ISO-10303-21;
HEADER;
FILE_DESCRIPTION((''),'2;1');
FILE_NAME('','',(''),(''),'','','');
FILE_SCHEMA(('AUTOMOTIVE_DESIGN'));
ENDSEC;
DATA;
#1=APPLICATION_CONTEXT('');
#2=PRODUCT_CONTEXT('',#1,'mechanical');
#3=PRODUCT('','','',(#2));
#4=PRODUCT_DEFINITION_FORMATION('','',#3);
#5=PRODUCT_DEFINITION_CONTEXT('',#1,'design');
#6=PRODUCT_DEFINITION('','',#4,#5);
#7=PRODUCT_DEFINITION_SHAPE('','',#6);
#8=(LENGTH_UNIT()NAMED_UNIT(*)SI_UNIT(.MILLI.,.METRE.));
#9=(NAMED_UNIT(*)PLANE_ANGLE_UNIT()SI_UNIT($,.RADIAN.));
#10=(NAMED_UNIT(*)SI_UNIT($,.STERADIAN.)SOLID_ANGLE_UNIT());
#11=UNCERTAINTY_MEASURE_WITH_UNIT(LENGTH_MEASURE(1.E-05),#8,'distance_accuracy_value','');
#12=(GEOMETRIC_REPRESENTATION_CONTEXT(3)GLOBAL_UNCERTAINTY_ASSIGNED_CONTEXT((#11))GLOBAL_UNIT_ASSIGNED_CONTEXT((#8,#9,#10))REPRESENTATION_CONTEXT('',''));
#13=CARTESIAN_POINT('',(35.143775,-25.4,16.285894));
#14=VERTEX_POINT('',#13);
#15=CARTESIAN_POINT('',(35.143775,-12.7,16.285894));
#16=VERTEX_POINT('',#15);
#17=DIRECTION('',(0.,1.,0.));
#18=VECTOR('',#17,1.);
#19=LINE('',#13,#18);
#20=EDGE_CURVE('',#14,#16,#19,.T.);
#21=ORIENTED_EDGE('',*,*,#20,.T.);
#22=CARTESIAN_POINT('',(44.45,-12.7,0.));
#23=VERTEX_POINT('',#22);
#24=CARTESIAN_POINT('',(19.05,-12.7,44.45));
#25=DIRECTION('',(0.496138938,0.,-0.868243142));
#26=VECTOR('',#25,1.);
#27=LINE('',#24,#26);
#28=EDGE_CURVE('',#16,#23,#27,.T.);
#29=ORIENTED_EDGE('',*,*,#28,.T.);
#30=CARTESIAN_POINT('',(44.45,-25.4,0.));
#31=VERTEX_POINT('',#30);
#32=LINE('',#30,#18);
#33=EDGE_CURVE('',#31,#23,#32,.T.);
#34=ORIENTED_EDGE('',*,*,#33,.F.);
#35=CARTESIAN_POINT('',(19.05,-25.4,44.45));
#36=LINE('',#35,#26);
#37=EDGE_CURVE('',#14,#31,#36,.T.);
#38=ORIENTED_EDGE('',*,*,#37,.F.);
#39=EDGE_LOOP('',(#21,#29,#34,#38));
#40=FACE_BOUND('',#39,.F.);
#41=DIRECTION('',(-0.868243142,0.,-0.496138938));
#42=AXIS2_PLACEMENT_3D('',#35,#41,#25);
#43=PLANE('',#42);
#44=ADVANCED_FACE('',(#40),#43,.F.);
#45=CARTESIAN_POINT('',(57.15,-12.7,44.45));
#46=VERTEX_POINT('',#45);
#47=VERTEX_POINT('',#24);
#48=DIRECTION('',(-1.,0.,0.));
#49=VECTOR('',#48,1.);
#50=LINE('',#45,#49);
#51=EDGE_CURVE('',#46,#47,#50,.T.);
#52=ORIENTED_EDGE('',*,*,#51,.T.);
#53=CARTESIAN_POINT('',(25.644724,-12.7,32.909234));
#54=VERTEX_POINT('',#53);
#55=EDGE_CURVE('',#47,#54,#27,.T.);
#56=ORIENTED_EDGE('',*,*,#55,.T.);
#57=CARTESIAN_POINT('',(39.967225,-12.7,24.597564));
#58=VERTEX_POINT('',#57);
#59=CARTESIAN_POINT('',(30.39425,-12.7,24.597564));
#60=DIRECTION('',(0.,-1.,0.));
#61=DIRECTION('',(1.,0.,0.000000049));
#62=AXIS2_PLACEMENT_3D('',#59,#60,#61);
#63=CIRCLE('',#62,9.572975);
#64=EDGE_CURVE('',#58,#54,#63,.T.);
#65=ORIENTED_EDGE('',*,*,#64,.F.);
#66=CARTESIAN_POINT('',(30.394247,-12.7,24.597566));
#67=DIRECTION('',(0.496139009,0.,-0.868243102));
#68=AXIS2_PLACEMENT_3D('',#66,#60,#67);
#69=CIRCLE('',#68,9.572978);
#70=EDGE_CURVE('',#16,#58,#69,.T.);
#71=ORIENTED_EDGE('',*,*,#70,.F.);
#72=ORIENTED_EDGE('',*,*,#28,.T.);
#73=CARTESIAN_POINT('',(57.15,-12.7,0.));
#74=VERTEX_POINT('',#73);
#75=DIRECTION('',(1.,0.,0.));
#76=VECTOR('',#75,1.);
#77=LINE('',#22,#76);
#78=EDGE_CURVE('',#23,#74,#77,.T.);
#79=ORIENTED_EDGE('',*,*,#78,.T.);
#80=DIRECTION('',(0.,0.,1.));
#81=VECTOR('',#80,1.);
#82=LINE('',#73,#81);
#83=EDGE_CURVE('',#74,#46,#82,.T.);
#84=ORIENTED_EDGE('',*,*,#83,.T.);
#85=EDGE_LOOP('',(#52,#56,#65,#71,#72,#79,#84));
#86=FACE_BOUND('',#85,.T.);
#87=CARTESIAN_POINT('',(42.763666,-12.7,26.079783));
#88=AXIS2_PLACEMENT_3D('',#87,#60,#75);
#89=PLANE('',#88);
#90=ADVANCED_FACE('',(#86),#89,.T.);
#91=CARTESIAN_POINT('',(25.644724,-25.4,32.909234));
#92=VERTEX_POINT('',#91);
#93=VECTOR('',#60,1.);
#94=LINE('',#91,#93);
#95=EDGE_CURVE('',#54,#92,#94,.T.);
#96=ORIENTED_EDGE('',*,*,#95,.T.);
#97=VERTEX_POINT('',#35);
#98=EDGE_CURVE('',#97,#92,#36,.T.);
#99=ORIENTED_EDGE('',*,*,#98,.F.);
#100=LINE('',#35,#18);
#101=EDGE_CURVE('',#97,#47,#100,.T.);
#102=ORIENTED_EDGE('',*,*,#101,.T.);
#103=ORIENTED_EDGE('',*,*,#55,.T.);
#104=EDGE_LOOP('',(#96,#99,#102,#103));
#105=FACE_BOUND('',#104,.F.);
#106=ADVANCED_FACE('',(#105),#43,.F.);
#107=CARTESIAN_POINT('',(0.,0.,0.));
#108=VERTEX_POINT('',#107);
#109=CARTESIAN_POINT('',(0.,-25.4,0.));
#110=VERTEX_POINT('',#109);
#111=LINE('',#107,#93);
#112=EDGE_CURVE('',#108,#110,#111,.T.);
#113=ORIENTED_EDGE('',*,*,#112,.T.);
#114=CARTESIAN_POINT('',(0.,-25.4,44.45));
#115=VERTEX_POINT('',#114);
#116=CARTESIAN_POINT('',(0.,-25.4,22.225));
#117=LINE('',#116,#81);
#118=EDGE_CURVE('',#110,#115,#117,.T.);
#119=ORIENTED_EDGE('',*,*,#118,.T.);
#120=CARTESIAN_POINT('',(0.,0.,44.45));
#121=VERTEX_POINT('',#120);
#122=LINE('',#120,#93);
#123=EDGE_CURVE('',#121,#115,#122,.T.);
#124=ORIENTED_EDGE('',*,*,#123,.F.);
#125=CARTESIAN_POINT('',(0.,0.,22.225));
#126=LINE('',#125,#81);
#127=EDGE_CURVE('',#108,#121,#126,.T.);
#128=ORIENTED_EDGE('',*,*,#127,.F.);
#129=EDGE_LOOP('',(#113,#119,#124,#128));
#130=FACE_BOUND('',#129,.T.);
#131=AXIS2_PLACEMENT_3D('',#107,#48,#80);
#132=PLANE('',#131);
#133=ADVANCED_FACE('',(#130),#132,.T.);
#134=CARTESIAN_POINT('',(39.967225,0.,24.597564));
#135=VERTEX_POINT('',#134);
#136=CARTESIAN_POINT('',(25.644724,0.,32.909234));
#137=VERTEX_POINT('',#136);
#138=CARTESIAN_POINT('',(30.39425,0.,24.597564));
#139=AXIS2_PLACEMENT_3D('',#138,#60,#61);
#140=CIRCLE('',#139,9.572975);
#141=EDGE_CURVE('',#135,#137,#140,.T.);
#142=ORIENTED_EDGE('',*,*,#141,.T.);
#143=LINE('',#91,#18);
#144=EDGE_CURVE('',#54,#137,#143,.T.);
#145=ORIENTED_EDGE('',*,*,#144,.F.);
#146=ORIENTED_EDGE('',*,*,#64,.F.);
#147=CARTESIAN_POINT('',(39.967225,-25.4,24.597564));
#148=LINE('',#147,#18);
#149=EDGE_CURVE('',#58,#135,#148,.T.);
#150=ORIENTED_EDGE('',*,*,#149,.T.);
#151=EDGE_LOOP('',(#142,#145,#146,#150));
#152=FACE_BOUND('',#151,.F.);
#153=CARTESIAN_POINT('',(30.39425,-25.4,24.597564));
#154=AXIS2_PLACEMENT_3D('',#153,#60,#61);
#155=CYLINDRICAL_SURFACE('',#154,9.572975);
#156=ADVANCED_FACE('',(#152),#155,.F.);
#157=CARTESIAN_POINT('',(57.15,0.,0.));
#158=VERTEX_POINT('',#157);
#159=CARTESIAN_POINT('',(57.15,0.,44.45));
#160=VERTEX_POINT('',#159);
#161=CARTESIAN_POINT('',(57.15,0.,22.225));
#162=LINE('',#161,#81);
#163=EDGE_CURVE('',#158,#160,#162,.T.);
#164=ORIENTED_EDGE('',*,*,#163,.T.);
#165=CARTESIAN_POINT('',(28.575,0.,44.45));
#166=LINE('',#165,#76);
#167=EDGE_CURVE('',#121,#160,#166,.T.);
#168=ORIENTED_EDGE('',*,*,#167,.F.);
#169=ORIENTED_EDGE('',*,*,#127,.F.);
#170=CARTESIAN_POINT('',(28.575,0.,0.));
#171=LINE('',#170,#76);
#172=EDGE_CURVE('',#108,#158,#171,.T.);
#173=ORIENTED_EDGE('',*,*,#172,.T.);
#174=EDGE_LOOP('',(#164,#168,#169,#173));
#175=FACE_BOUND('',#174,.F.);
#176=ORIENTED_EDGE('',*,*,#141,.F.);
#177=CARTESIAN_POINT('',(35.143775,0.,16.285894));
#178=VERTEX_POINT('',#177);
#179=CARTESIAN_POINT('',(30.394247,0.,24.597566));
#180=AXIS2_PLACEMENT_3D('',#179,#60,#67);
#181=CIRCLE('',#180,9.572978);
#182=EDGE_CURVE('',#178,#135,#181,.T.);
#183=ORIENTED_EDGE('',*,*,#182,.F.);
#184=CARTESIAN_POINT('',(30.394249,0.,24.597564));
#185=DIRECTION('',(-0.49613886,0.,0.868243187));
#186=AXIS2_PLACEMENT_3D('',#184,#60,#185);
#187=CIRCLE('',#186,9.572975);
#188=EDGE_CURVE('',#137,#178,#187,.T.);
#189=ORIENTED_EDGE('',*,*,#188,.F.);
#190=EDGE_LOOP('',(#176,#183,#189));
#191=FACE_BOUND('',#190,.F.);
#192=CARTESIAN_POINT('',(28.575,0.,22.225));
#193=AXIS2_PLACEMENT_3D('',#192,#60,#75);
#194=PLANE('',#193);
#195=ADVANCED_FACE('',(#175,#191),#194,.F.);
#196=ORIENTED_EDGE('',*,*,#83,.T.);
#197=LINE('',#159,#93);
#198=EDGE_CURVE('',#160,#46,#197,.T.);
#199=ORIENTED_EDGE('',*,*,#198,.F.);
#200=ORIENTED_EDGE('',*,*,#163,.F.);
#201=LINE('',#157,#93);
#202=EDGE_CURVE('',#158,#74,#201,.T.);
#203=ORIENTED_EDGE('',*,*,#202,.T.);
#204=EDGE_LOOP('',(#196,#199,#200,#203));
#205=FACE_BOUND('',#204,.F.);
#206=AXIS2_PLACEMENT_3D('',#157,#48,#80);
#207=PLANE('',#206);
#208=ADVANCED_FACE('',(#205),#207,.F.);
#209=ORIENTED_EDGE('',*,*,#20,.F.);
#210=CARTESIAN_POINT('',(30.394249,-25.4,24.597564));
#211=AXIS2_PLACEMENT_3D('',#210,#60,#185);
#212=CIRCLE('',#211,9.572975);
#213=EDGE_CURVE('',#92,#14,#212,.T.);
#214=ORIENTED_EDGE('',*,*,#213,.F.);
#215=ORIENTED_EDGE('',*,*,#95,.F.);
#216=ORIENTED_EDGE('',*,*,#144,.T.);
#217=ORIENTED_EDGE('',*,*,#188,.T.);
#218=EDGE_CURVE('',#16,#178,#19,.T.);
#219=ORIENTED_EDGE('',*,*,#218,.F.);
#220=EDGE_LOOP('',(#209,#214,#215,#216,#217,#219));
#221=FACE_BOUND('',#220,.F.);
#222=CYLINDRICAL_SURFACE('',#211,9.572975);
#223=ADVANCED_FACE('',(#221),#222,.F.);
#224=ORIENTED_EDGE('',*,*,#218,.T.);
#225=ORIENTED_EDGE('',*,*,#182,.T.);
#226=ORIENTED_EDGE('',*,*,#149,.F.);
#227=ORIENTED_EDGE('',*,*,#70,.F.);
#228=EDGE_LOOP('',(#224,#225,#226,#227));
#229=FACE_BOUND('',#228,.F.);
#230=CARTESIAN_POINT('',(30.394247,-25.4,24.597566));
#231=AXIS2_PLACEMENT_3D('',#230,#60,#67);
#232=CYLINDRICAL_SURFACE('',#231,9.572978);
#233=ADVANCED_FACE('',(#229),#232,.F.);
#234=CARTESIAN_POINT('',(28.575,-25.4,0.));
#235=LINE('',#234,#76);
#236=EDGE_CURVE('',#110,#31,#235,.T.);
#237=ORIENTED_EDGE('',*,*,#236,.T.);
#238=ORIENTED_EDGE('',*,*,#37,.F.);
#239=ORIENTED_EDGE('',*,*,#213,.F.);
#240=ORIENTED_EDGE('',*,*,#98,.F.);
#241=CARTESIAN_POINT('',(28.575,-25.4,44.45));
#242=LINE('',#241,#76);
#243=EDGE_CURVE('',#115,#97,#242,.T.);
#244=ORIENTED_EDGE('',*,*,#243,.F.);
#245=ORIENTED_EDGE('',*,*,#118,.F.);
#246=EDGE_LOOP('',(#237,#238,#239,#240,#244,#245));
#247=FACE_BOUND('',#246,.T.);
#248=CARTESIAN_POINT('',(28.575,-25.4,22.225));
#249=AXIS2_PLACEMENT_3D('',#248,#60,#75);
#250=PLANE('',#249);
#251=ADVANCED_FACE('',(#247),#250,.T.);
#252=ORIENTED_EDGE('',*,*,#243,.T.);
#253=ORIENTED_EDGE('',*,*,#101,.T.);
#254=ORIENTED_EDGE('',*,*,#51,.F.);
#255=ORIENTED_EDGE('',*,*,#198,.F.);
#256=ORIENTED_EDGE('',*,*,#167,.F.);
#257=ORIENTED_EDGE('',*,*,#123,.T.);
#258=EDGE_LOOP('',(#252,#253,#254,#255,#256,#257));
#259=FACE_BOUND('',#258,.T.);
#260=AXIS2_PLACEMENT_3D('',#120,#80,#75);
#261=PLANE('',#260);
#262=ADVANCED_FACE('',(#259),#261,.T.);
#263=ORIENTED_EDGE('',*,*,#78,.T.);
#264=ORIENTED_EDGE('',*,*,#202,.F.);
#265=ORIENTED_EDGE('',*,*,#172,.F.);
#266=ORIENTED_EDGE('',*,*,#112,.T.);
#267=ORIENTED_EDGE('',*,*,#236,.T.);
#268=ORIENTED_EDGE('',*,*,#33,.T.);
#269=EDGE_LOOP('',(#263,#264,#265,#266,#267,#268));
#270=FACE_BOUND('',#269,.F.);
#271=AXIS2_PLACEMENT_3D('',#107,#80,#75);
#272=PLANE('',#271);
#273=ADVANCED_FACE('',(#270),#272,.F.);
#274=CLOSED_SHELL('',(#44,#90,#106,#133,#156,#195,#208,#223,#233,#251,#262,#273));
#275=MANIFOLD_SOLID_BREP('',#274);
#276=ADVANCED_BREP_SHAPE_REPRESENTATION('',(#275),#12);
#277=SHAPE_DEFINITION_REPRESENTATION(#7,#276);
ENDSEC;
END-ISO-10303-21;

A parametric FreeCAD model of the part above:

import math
import FreeCAD as App
import Part
import Sketcher
Q = App.Units.Quantity


def add_polygon(sketch, points):
    """Adds a closed chain of lines whose ends are joined by coincident constraints."""
    first, n = sketch.GeometryCount, len(points)
    for a, b in zip(points, points[1:] + points[:1]):
        sketch.addGeometry(Part.LineSegment(App.Vector(*a, 0), App.Vector(*b, 0)), False)
    for i in range(n):
        sketch.addConstraint(Sketcher.Constraint("Coincident", first + i, 2, first + (i + 1) % n, 1))

doc = App.newDocument("Part")
body = doc.addObject("PartDesign::Body", "Body")

# Sketch on XZ plane
sketch1 = doc.addObject("Sketcher::SketchObject", "Sketch")
body.addObject(sketch1)
sketch1.AttachmentSupport = (doc.XZ_Plane, [""])
sketch1.MapMode = "FlatFace"
add_polygon(sketch1, [(0, 44), (0, 0), (57, 0), (57, 44)])  # lines 0-3
sketch1.addConstraint([
    Sketcher.Constraint("Vertical", 0),
    Sketcher.Constraint("Horizontal", 1),
    Sketcher.Constraint("Vertical", 2),
    Sketcher.Constraint("Horizontal", 3),
    Sketcher.Constraint("Coincident", 0, 2, -1, 1),
    Sketcher.Constraint("DistanceX", 1, 1, 1, 2, Q("2.25 in")),
    Sketcher.Constraint("DistanceY", 0, 2, 0, 1, Q("1.75 in")),
])
pad1 = doc.addObject("PartDesign::Pad", "Pad")
body.addObject(pad1)
pad1.Profile = sketch1
pad1.Length = Q("1 in")

# Sketch on XZ plane
sketch2 = doc.addObject("Sketcher::SketchObject", "Sketch001")
body.addObject(sketch2)
sketch2.AttachmentSupport = (doc.XZ_Plane, [""])
sketch2.MapMode = "FlatFace"
sketch2.AttachmentOffset = App.Placement(App.Vector(0, 0, 1 * 25.4), App.Rotation())
add_polygon(sketch2, [(19, 44), (44, 0), (57, 0), (57, 44)])  # lines 0-3
sketch2.addConstraint([
    Sketcher.Constraint("Horizontal", 1),
    Sketcher.Constraint("Vertical", 2),
    Sketcher.Constraint("Horizontal", 3),
    Sketcher.Constraint("PointOnObject", 0, 2, -1),
    Sketcher.Constraint("DistanceX", 1, 1, 1, 2, Q("0.5 in")),
    Sketcher.Constraint("DistanceX", 3, 2, 3, 1, Q("1.5 in")),
    Sketcher.Constraint("DistanceY", 2, 1, 2, 2, Q("1.75 in")),
    Sketcher.Constraint("DistanceX", -1, 1, 0, 2, Q("1.75 in")),
])
pocket1 = doc.addObject("PartDesign::Pocket", "Pocket")
body.addObject(pocket1)
pocket1.Profile = sketch2
pocket1.Length = Q("0.5 in")

# Sketch on XZ plane
sketch3 = doc.addObject("Sketcher::SketchObject", "Sketch002")
body.addObject(sketch3)
sketch3.AttachmentSupport = (doc.XZ_Plane, [""])
sketch3.MapMode = "FlatFace"
sketch3.AttachmentOffset = App.Placement(App.Vector(0, 0, 1 * 25.4), App.Rotation())
sketch3.addGeometry([
    Part.ArcOfCircle(Part.Circle(App.Vector(30, 25, 0), App.Vector(0, 0, 1), 10), math.radians(-60), math.radians(0)),
    Part.ArcOfCircle(Part.Circle(App.Vector(30, 25, 0), App.Vector(0, 0, 1), 10), math.radians(0), math.radians(120)),
    Part.ArcOfCircle(Part.Circle(App.Vector(30, 25, 0), App.Vector(0, 0, 1), 10), math.radians(120), math.radians(300)),
], False)
sketch3.addConstraint([
    Sketcher.Constraint("Tangent", 0, 2, 1, 1),
    Sketcher.Constraint("Tangent", 1, 2, 2, 1),
    Sketcher.Constraint("Tangent", 2, 2, 0, 1),
    Sketcher.Constraint("Horizontal", 2, 3, 0, 2),
    Sketcher.Constraint("Radius", 0, Q("9.572978 mm")),
    Sketcher.Constraint("DistanceX", 1, 2, 0, 2, Q("14.322501 mm")),
    Sketcher.Constraint("DistanceX", -1, 1, 1, 3, Q("30.39425 mm")),
    Sketcher.Constraint("DistanceY", 2, 2, 1, 3, Q("8.31167 mm")),
    Sketcher.Constraint("DistanceY", -1, 1, 0, 3, Q("24.597566 mm")),
])
pocket2 = doc.addObject("PartDesign::Pocket", "Pocket001")
body.addObject(pocket2)
pocket2.Profile = sketch3
pocket2.Length = Q("1 in")

doc.recompute()
